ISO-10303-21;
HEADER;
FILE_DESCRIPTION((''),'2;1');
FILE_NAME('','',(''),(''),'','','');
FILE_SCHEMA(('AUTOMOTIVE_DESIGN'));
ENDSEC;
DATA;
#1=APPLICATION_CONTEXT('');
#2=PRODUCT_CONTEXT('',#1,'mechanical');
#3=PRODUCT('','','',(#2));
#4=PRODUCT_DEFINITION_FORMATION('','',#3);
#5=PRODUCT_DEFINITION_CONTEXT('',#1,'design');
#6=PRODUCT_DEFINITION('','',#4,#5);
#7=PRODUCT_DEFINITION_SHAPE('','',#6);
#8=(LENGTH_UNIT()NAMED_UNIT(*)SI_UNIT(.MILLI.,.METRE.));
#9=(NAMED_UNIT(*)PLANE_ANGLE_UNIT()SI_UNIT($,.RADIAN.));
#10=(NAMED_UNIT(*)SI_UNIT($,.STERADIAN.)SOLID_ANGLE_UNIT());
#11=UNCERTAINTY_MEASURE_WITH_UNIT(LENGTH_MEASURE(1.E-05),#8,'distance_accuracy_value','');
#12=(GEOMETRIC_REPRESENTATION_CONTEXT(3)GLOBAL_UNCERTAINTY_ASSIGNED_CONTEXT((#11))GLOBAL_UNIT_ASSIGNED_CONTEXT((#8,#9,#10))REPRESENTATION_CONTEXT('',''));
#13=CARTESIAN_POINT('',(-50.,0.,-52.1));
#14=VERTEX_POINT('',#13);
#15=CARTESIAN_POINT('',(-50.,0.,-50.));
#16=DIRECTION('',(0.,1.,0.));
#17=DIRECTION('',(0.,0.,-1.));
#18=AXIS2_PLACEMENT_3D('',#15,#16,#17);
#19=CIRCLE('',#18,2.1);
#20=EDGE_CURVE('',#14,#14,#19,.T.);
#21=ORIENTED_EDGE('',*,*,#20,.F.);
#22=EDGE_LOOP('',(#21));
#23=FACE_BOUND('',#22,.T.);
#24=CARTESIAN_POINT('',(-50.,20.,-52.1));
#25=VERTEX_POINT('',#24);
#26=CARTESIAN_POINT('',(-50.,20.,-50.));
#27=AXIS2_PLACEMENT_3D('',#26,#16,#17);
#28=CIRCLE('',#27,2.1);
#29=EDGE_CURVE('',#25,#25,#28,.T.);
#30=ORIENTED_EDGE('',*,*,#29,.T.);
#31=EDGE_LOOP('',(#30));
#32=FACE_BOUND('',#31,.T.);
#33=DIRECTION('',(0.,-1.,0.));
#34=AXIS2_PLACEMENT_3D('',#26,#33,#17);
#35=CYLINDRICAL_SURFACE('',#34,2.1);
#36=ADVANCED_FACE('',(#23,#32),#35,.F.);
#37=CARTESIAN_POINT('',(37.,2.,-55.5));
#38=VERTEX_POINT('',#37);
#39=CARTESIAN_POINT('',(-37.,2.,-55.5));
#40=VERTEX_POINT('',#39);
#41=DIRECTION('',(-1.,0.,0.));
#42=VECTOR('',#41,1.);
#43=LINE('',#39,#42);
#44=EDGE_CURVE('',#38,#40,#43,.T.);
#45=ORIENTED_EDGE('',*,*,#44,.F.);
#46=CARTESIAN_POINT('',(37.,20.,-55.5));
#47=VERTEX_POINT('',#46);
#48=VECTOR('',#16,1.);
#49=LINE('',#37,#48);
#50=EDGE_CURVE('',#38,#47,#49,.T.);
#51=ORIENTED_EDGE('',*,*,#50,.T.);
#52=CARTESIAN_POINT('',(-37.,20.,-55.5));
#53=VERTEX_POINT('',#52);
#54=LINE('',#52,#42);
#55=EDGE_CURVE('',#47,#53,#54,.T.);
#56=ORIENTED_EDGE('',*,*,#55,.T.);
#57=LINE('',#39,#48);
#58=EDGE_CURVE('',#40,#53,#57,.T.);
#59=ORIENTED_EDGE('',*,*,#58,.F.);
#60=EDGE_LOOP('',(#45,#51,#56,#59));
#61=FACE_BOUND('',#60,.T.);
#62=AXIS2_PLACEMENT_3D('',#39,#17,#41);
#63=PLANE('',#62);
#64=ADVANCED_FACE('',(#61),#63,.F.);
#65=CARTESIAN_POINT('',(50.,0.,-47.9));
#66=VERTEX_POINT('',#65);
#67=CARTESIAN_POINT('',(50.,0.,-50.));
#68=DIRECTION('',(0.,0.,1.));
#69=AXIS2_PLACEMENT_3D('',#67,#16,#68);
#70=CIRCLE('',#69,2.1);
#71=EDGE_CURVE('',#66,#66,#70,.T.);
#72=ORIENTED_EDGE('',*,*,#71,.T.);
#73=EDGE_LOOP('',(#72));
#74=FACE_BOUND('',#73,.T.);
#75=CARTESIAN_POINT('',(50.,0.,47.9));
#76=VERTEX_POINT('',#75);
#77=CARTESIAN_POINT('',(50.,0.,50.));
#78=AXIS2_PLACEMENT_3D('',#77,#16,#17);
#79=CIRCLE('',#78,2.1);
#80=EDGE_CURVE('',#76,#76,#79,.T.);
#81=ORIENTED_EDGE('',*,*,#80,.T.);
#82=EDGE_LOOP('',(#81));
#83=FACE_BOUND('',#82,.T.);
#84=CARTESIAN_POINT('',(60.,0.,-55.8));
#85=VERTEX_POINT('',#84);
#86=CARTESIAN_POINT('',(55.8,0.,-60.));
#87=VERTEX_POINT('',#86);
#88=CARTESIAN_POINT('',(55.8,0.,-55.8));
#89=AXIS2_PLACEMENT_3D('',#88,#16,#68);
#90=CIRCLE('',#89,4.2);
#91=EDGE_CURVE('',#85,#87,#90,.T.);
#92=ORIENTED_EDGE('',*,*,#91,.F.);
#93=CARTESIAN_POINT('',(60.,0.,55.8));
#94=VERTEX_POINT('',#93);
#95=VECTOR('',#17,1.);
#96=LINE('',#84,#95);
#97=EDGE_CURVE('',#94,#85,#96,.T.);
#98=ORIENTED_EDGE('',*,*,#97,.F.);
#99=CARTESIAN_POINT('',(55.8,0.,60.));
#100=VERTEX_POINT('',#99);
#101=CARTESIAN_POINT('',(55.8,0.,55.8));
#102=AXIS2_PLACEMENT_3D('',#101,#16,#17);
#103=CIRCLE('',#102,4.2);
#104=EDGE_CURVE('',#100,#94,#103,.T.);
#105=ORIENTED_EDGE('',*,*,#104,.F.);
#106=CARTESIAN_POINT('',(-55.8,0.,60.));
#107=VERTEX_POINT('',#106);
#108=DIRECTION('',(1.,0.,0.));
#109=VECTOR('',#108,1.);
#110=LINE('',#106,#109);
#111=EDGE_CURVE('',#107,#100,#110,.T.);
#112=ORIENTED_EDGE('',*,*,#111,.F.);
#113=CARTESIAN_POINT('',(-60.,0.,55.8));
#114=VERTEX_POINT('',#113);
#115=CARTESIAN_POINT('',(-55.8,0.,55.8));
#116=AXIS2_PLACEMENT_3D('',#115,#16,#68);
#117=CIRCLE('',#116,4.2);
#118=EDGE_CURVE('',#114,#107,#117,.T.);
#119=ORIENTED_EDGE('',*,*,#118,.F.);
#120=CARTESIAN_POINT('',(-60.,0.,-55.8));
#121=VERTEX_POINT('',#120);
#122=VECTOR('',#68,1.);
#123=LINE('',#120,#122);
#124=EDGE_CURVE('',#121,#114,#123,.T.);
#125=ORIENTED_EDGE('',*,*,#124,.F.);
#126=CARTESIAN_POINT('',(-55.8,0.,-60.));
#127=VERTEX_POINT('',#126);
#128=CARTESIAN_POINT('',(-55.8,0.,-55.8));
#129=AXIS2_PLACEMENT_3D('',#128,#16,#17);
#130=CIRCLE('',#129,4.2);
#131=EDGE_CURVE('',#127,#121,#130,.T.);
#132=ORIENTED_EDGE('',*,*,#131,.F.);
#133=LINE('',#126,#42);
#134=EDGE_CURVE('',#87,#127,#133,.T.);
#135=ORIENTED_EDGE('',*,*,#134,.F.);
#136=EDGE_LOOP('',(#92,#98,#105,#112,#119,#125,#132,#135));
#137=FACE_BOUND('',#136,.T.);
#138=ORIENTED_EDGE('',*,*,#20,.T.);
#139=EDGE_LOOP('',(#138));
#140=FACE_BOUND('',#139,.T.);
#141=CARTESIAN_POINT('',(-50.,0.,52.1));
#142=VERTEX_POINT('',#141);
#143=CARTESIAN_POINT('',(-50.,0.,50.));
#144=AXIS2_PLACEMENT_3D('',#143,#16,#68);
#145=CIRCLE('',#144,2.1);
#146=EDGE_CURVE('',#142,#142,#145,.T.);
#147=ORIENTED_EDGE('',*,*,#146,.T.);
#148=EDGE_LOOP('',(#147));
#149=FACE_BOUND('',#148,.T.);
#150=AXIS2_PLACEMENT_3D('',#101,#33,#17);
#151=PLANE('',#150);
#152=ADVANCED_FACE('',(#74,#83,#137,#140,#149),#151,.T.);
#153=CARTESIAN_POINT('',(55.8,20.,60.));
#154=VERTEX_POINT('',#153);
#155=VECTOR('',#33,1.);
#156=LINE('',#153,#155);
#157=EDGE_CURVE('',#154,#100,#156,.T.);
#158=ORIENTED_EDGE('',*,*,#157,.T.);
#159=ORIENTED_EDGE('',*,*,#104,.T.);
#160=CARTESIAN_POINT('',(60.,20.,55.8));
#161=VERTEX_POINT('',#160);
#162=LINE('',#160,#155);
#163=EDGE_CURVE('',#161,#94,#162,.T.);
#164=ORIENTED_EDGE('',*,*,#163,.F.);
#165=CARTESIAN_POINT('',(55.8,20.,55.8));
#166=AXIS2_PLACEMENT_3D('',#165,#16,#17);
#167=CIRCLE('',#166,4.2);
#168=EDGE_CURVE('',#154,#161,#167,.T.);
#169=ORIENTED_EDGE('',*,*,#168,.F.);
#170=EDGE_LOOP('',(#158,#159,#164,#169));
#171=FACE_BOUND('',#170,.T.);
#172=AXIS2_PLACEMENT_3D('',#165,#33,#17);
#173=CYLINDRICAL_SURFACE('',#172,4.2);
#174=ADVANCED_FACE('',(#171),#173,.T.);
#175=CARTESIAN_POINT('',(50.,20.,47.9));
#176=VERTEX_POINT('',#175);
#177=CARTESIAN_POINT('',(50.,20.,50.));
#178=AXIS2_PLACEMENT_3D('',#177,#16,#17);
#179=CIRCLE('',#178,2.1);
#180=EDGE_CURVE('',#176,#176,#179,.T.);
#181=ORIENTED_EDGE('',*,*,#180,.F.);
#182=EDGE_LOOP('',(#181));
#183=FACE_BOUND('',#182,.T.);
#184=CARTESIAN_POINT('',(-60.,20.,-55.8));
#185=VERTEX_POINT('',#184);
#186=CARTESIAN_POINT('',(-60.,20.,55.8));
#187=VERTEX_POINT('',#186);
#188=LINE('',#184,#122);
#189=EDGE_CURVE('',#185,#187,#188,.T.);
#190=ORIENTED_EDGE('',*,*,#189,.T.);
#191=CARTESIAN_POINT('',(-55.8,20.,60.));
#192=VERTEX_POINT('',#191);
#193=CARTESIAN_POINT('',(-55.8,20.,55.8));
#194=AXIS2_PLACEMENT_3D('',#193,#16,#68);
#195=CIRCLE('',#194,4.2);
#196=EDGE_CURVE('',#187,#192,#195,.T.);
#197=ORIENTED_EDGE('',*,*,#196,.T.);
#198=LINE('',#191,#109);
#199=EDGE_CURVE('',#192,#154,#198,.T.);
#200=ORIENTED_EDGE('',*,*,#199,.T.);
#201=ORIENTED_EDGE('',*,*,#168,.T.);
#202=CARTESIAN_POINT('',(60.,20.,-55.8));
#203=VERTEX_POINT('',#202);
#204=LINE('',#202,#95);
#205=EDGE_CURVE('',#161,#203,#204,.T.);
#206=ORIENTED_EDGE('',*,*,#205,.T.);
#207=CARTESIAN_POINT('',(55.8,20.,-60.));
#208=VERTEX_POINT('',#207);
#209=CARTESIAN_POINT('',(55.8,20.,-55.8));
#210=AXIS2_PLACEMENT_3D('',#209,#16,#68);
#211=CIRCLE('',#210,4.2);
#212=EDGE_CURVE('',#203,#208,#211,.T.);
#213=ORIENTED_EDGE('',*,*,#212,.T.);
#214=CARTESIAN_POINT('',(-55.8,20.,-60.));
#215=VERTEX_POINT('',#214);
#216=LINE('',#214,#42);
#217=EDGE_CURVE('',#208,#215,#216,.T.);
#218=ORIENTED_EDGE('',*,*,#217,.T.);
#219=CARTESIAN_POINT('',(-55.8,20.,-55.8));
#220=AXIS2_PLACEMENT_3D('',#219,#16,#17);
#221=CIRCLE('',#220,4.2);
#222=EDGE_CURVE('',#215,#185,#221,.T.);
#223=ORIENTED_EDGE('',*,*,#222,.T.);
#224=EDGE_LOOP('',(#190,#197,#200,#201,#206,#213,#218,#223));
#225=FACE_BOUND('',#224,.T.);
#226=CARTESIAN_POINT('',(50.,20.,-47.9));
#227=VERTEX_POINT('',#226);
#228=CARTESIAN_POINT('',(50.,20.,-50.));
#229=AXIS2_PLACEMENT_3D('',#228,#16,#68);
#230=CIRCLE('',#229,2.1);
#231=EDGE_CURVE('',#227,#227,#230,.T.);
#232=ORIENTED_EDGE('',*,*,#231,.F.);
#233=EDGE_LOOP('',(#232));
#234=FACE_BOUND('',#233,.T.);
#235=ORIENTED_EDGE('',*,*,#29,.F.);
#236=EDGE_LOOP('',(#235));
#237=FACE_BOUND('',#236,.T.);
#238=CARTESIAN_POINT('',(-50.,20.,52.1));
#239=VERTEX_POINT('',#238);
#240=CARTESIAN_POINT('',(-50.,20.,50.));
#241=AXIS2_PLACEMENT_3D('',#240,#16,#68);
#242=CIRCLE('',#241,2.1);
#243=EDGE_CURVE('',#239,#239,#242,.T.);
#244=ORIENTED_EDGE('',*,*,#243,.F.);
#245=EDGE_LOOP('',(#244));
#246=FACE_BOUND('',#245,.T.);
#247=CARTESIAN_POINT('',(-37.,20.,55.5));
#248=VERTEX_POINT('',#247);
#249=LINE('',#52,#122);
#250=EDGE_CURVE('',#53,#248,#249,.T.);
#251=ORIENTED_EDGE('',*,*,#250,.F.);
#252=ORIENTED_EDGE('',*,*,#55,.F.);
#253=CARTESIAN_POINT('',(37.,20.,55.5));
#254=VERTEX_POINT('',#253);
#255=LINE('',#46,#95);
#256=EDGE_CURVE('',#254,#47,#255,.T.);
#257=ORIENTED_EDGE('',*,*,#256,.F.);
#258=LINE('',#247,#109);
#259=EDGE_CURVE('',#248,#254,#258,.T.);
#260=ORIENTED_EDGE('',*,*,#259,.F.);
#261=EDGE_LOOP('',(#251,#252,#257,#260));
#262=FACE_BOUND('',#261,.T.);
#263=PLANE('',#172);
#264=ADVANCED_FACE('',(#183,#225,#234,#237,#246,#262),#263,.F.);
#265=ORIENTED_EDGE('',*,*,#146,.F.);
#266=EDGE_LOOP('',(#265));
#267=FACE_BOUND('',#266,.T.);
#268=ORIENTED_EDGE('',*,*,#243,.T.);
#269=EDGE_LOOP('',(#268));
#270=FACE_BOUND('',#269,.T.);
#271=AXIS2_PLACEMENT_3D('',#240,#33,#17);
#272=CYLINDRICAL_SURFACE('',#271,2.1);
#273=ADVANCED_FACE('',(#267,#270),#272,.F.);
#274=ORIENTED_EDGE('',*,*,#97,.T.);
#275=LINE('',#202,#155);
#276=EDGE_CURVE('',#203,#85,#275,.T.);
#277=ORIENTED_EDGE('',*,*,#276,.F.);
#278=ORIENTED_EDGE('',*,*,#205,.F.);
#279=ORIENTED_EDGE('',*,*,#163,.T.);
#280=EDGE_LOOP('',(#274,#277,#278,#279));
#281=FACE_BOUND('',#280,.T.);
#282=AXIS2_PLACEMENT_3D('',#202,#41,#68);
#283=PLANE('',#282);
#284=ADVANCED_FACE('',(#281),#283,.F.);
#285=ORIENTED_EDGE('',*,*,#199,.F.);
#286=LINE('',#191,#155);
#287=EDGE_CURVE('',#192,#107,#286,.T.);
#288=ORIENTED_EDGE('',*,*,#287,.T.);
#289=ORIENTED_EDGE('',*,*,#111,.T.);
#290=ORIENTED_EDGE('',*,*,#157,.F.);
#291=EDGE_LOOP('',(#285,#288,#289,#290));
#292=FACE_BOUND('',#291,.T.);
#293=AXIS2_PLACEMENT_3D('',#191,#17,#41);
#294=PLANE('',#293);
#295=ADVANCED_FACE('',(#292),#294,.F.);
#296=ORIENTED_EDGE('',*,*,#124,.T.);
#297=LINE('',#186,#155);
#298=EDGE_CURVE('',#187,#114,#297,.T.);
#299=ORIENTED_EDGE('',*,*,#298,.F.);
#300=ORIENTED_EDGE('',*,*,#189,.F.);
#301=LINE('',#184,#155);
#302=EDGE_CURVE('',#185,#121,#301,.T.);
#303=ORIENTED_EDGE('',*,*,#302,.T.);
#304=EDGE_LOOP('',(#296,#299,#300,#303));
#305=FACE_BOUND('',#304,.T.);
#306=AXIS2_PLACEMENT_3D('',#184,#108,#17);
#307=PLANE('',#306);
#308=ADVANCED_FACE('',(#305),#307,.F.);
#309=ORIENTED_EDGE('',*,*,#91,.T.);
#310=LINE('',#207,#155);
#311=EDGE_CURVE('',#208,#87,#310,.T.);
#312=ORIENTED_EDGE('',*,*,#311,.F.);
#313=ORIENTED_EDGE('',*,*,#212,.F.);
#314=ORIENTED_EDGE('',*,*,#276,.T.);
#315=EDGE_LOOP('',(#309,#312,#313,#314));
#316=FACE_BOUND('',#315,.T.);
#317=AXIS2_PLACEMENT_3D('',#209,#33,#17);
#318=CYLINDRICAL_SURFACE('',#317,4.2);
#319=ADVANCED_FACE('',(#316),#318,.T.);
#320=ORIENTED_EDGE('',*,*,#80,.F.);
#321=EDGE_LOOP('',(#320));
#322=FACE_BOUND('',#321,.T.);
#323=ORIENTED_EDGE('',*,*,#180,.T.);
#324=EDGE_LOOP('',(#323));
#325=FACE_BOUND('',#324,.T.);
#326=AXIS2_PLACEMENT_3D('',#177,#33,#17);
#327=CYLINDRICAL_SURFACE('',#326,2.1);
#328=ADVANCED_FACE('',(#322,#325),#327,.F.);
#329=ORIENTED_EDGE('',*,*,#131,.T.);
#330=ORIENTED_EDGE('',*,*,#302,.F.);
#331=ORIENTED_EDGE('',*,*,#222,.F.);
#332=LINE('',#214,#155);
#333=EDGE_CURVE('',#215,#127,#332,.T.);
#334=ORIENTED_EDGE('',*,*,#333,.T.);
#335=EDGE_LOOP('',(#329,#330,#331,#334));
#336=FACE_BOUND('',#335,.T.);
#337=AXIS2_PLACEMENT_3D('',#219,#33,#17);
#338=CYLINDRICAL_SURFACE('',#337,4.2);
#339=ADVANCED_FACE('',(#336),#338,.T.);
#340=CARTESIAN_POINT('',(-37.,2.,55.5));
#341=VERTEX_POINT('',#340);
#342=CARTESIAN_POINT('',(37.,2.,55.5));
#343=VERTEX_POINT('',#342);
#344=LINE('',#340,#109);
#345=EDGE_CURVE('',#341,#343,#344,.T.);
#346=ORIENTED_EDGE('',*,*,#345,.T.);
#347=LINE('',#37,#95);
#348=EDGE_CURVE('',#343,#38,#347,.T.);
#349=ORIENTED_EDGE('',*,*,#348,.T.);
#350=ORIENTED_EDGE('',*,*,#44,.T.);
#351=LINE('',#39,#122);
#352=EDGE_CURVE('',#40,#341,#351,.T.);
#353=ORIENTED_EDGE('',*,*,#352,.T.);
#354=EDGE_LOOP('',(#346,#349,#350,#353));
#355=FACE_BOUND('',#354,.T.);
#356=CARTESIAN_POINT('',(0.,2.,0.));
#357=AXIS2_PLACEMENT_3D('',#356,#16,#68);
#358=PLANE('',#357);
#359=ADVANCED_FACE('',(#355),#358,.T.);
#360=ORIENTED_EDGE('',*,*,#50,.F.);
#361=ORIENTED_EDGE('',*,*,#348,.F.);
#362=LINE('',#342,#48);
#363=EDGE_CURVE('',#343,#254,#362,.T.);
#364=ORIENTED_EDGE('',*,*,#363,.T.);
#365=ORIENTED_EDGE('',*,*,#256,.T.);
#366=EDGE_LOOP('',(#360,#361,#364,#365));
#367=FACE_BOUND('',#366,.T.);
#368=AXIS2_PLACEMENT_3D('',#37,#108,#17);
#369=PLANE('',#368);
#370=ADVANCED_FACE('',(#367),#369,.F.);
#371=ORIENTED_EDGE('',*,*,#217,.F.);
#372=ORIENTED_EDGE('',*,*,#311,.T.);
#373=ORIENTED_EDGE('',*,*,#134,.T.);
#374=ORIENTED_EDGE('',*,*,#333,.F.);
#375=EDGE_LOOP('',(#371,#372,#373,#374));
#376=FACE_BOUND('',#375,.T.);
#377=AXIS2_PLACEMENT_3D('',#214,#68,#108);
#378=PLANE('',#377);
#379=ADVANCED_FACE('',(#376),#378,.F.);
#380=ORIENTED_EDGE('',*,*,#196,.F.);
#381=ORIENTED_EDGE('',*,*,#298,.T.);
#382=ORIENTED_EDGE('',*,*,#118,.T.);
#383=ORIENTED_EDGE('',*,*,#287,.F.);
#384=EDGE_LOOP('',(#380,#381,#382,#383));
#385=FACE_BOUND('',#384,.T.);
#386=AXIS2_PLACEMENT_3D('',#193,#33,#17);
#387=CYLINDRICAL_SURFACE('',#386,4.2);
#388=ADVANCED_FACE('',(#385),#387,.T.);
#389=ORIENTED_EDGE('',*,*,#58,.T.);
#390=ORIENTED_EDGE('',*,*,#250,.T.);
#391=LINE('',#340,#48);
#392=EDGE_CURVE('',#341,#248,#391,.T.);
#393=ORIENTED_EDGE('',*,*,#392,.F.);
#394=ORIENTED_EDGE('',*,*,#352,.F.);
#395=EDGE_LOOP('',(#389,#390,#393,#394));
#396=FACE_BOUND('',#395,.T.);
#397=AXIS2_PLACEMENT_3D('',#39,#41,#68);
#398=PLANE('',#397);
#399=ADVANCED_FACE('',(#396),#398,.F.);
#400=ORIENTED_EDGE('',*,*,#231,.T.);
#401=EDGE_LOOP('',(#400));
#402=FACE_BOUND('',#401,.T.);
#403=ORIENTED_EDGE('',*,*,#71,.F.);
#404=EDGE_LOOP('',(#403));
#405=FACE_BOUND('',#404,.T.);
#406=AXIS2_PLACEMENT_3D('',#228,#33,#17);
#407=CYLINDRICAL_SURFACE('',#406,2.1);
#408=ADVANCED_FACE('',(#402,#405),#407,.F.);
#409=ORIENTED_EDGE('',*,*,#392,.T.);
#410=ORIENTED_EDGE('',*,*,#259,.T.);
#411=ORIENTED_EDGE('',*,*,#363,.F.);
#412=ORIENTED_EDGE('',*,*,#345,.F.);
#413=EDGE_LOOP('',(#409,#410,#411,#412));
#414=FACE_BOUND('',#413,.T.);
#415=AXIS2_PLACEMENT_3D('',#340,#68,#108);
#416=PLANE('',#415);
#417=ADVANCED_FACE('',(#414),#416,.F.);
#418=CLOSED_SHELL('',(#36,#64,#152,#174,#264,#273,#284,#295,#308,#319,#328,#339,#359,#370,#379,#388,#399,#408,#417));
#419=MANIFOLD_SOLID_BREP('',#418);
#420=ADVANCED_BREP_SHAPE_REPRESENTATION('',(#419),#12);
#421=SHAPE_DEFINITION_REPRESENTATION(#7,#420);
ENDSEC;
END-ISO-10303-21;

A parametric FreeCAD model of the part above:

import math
import FreeCAD as App
import Part
import Sketcher

V = App.Vector


def add_polygon(sketch, points):
    """Adds a closed chain of lines whose ends are joined by coincident constraints."""
    first, n = sketch.GeometryCount, len(points)
    for a, b in zip(points, points[1:] + points[:1]):
        sketch.addGeometry(Part.LineSegment(App.Vector(*a, 0), App.Vector(*b, 0)), False)
    for i in range(n):
        sketch.addConstraint(Sketcher.Constraint("Coincident", first + i, 2, first + (i + 1) % n, 1))

doc = App.newDocument("Part")
body = doc.addObject("PartDesign::Body", "Body")

sketch1 = body.newObject("Sketcher::SketchObject", "Sketch")
sketch1.AttachmentSupport = (doc.getObject("XZ_Plane"), [""])
sketch1.MapMode = "FlatFace"
sketch1.addGeometry(Part.LineSegment(V(55.8, -60, 0), V(-55.8, -60, 0)), False)
sketch1.addGeometry(Part.ArcOfCircle(Part.Circle(V(-55.8, -55.8, 0), V(0, 0, 1), 4.2), math.radians(180), math.radians(270)), False)
sketch1.addGeometry(Part.LineSegment(V(-60, -55.8, 0), V(-60, 55.8, 0)), False)
sketch1.addGeometry(Part.ArcOfCircle(Part.Circle(V(-55.8, 55.8, 0), V(0, 0, 1), 4.2), math.radians(90), math.radians(180)), False)
sketch1.addGeometry(Part.LineSegment(V(-55.8, 60, 0), V(55.8, 60, 0)), False)
sketch1.addGeometry(Part.ArcOfCircle(Part.Circle(V(55.8, 55.8, 0), V(0, 0, 1), 4.2), math.radians(0), math.radians(90)), False)
sketch1.addGeometry(Part.LineSegment(V(60, 55.8, 0), V(60, -55.8, 0)), False)
sketch1.addGeometry(Part.ArcOfCircle(Part.Circle(V(55.8, -55.8, 0), V(0, 0, 1), 4.2), math.radians(-90), math.radians(0)), False)
sketch1.addGeometry(Part.Circle(V(50, 50, 0), V(0, 0, 1), 2.1), False)
sketch1.addGeometry(Part.Circle(V(-50, 50, 0), V(0, 0, 1), 2.1), False)
sketch1.addGeometry(Part.Circle(V(50, -50, 0), V(0, 0, 1), 2.1), False)
sketch1.addGeometry(Part.Circle(V(-50, -50, 0), V(0, 0, 1), 2.1), False)
sketch1.addConstraint(Sketcher.Constraint("Tangent", 0, 2, 1, 2))
sketch1.addConstraint(Sketcher.Constraint("Tangent", 1, 1, 2, 1))
sketch1.addConstraint(Sketcher.Constraint("Tangent", 2, 2, 3, 2))
sketch1.addConstraint(Sketcher.Constraint("Tangent", 3, 1, 4, 1))
sketch1.addConstraint(Sketcher.Constraint("Tangent", 4, 2, 5, 2))
sketch1.addConstraint(Sketcher.Constraint("Tangent", 5, 1, 6, 1))
sketch1.addConstraint(Sketcher.Constraint("Tangent", 6, 2, 7, 2))
sketch1.addConstraint(Sketcher.Constraint("Tangent", 7, 1, 0, 1))
sketch1.addConstraint(Sketcher.Constraint("Horizontal", 0))
sketch1.addConstraint(Sketcher.Constraint("Vertical", 2))
sketch1.addConstraint(Sketcher.Constraint("Horizontal", 4))
sketch1.addConstraint(Sketcher.Constraint("Vertical", 6))
sketch1.addConstraint(Sketcher.Constraint("Equal", 1, 3))
sketch1.addConstraint(Sketcher.Constraint("Equal", 3, 5))
sketch1.addConstraint(Sketcher.Constraint("Equal", 5, 7))
sketch1.addConstraint(Sketcher.Constraint("Equal", 8, 9))
sketch1.addConstraint(Sketcher.Constraint("Equal", 9, 10))
sketch1.addConstraint(Sketcher.Constraint("Equal", 10, 11))
sketch1.addConstraint(Sketcher.Constraint("Symmetric", 1, 3, 5, 3, -1, 1))
sketch1.addConstraint(Sketcher.Constraint("Symmetric", 9, 3, 10, 3, -1, 1))
sketch1.addConstraint(Sketcher.Constraint("Symmetric", 8, 3, 11, 3, -1, 1))
sketch1.addConstraint(Sketcher.Constraint("Symmetric", 8, 3, 9, 3, -2))
sketch1.addConstraint(Sketcher.Constraint("Equal", 4, 2))
sketch1.addConstraint(Sketcher.Constraint("Diameter", 8, 4.2))
sketch1.addConstraint(Sketcher.Constraint("Radius", 1, 4.2))
sketch1.addConstraint(Sketcher.Constraint("DistanceX", 0, 2, 0, 1, 111.6))
sketch1.addConstraint(Sketcher.Constraint("DistanceX", -1, 1, 8, 3, 50.0))
sketch1.addConstraint(Sketcher.Constraint("DistanceY", -1, 1, 8, 3, 50.0))
pad1 = body.newObject("PartDesign::Pad", "Pad")
pad1.Profile = sketch1
pad1.Length = 20
pad1.Reversed = True

sketch2 = body.newObject("Sketcher::SketchObject", "Sketch001")
sketch2.AttachmentSupport = (doc.getObject("XZ_Plane"), [""])
sketch2.MapMode = "FlatFace"
sketch2.AttachmentOffset = App.Placement(V(0, 0, -20), App.Rotation())
add_polygon(sketch2, [(-37, -55.5), (-37, 55.5), (37, 55.5), (37, -55.5)])
sketch2.addConstraint(Sketcher.Constraint("Vertical", 0))
sketch2.addConstraint(Sketcher.Constraint("Horizontal", 1))
sketch2.addConstraint(Sketcher.Constraint("Vertical", 2))
sketch2.addConstraint(Sketcher.Constraint("Horizontal", 3))
sketch2.addConstraint(Sketcher.Constraint("Symmetric", 0, 2, 2, 2, -1, 1))
sketch2.addConstraint(Sketcher.Constraint("DistanceX", 1, 1, 1, 2, 74.0))
sketch2.addConstraint(Sketcher.Constraint("DistanceY", 0, 1, 0, 2, 111.0))
pocket1 = body.newObject("PartDesign::Pocket", "Pocket")
pocket1.Profile = sketch2
pocket1.Length = 18
pocket1.Reversed = True

doc.recompute()
